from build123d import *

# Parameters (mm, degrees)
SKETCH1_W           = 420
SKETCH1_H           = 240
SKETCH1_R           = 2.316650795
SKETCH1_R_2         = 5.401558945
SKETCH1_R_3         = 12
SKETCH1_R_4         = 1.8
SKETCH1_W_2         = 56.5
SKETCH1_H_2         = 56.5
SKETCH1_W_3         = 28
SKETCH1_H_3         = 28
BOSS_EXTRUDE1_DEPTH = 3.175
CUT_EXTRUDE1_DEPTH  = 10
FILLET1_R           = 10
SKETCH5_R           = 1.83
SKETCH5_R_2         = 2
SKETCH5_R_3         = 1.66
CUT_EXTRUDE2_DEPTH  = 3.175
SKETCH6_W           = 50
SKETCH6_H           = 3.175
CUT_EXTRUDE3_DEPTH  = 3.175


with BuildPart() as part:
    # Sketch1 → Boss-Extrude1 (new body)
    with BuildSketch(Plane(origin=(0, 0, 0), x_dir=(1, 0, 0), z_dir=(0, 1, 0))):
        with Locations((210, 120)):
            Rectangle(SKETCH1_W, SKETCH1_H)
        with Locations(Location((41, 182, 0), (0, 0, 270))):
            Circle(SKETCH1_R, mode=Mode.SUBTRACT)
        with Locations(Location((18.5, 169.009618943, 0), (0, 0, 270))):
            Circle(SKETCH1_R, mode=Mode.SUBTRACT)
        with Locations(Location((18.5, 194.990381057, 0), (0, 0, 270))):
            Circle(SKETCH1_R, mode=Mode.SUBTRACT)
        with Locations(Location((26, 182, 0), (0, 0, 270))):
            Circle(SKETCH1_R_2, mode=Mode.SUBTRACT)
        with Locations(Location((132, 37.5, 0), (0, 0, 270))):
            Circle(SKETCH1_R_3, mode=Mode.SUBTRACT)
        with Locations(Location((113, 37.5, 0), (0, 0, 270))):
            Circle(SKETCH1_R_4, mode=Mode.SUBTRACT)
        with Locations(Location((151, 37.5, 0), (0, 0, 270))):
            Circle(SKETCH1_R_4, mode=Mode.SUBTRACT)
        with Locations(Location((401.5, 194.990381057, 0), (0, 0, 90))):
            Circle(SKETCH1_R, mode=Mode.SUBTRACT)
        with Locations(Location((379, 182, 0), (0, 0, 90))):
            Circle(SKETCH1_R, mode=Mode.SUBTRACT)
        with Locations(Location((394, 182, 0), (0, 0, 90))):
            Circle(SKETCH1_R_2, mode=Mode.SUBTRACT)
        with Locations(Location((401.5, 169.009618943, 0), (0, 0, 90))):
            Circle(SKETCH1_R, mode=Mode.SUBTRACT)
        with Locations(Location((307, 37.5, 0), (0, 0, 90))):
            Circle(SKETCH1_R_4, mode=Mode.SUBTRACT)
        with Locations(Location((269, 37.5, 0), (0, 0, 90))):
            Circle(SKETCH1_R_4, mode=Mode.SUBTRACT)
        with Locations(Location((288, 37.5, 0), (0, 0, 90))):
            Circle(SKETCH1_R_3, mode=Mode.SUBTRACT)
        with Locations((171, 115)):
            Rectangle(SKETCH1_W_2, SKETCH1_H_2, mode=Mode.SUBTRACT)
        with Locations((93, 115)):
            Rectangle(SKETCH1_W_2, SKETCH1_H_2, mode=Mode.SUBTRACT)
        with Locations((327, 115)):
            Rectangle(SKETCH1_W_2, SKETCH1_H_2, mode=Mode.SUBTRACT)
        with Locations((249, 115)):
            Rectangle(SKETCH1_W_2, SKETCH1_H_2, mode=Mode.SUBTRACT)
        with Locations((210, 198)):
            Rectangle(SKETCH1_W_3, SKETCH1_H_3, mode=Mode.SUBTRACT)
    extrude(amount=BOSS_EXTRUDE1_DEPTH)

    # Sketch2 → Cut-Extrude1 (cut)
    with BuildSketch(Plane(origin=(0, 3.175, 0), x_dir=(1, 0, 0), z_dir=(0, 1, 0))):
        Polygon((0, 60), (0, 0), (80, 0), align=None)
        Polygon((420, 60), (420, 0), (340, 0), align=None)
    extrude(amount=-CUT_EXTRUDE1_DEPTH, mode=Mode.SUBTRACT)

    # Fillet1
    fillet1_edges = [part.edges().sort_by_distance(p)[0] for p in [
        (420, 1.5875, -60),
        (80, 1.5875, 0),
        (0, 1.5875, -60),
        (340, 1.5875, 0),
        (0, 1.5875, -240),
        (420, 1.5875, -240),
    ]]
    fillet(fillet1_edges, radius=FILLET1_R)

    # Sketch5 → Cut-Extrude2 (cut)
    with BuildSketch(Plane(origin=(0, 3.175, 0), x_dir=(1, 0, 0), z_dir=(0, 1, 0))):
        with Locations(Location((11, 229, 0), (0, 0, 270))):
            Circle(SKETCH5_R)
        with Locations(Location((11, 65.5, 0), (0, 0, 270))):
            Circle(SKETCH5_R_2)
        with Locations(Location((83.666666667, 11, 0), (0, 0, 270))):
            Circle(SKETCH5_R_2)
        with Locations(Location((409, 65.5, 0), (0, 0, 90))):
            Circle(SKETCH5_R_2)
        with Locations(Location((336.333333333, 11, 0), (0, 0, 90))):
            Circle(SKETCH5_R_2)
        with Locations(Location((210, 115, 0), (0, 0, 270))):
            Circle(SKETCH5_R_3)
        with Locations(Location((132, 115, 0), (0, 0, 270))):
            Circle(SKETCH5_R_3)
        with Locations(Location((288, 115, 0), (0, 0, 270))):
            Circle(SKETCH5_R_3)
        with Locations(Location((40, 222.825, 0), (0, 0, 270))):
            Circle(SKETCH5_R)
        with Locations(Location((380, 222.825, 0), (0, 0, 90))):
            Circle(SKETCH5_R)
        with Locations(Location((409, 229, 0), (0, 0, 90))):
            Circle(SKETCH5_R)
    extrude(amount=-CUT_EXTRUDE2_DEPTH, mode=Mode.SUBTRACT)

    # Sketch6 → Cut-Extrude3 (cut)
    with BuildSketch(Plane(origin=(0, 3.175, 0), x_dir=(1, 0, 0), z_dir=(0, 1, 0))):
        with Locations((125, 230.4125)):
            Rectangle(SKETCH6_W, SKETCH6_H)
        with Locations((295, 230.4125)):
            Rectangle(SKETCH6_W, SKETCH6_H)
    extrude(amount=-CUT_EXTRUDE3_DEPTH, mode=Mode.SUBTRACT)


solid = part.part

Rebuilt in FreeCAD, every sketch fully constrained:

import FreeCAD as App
import Part
import Sketcher
from FreeCAD import Vector
Q = App.Units.Quantity


def edges_at(feature, points):
    """Names of the edges that pass closest to the given points."""
    edges = feature.Shape.Edges
    near = lambda p: min(range(len(edges)), key=lambda i: edges[i].distToShape(Part.Vertex(*p))[0])
    return sorted({f"Edge{near(p) + 1}" for p in points})


def add_polygon(sketch, points):
    """Adds a closed chain of lines whose ends are joined by coincident constraints."""
    first, n = sketch.GeometryCount, len(points)
    for a, b in zip(points, points[1:] + points[:1]):
        sketch.addGeometry(Part.LineSegment(App.Vector(*a, 0), App.Vector(*b, 0)), False)
    for i in range(n):
        sketch.addConstraint(Sketcher.Constraint("Coincident", first + i, 2, first + (i + 1) % n, 1))

doc = App.newDocument("Part")
params = doc.addObject("Spreadsheet::Sheet", "Params")
for row, (alias, value) in enumerate([
    ("sketch1_diameter", "24 mm"),
    ("sketch1_diameter2", "3.6 mm"),
    ("sketch1_width", "420 mm"),
    ("sketch1_width2", "28 mm"),
    ("sketch1_height", "240 mm"),
    ("pad1_length", "3.175 mm"),
    ("sketch2_width", "80 mm"),
    ("sketch2_height", "60 mm"),
    ("pocket1_length", "10 mm"),
    ("fillet_radius", "10 mm"),
    ("sketch3_diameter", "4 mm"),
    ("sketch3_diameter2", "3.66 mm"),
    ("sketch3_diameter3", "3.32 mm"),
    ("pocket2_length", "3.175 mm"),
    ("sketch4_width", "50 mm"),
    ("pocket3_length", "3.175 mm"),
], start=1):
    params.set(f"A{row}", alias)
    params.set(f"B{row}", "=" + value)
    params.setAlias(f"B{row}", alias)

body = doc.addObject("PartDesign::Body", "Body")

# Sketch on XZ plane
sketch1 = body.newObject("Sketcher::SketchObject", "Sketch")
sketch1.AttachmentSupport = (doc.getObject("XZ_Plane"), [""])
sketch1.MapMode = "FlatFace"
add_polygon(sketch1, [(0, -240), (0, 0), (420, 0), (420, -240)])  # lines 0-3
sketch1.addGeometry(Part.Circle(Vector(113, -37.5, 0), Vector(0, 0, 1), 1.8), False)  # 4
sketch1.addGeometry(Part.Circle(Vector(132, -37.5, 0), Vector(0, 0, 1), 12), False)  # 5
sketch1.addGeometry(Part.Circle(Vector(151, -37.5, 0), Vector(0, 0, 1), 1.8), False)  # 6
add_polygon(sketch1, [(121.25, -86.75), (64.75, -86.75), (64.75, -143.25), (121.25, -143.25)])  # lines 7-10
add_polygon(sketch1, [(199.25, -86.75), (142.75, -86.75), (142.75, -143.25), (199.25, -143.25)])  # lines 11-14
sketch1.addGeometry(Part.Circle(Vector(269, -37.5, 0), Vector(0, 0, 1), 1.8), False)  # 15
sketch1.addGeometry(Part.Circle(Vector(288, -37.5, 0), Vector(0, 0, 1), 12), False)  # 16
sketch1.addGeometry(Part.Circle(Vector(307, -37.5, 0), Vector(0, 0, 1), 1.8), False)  # 17
add_polygon(sketch1, [(277.25, -86.75), (220.75, -86.75), (220.75, -143.25), (277.25, -143.25)])  # lines 18-21
add_polygon(sketch1, [(355.25, -86.75), (298.75, -86.75), (298.75, -143.25), (355.25, -143.25)])  # lines 22-25
sketch1.addGeometry(Part.Circle(Vector(18.5, -169.009619, 0), Vector(0, 0, 1), 2.316651), False)  # 26
sketch1.addGeometry(Part.Circle(Vector(26, -182, 0), Vector(0, 0, 1), 5.401559), False)  # 27
sketch1.addGeometry(Part.Circle(Vector(41, -182, 0), Vector(0, 0, 1), 2.316651), False)  # 28
sketch1.addGeometry(Part.Circle(Vector(18.5, -194.990381, 0), Vector(0, 0, 1), 2.316651), False)  # 29
add_polygon(sketch1, [(224, -184), (196, -184), (196, -212), (224, -212)])  # lines 30-33
sketch1.addGeometry(Part.Circle(Vector(401.5, -169.009619, 0), Vector(0, 0, 1), 2.316651), False)  # 34
sketch1.addGeometry(Part.Circle(Vector(379, -182, 0), Vector(0, 0, 1), 2.316651), False)  # 35
sketch1.addGeometry(Part.Circle(Vector(394, -182, 0), Vector(0, 0, 1), 5.401559), False)  # 36
sketch1.addGeometry(Part.Circle(Vector(401.5, -194.990381, 0), Vector(0, 0, 1), 2.316651), False)  # 37
sketch1.addConstraint([
    Sketcher.Constraint("Vertical", 0),
    Sketcher.Constraint("Horizontal", 1),
    Sketcher.Constraint("Vertical", 2),
    Sketcher.Constraint("Horizontal", 3),
    Sketcher.Constraint("Horizontal", 7),
    Sketcher.Constraint("Vertical", 8),
    Sketcher.Constraint("Horizontal", 9),
    Sketcher.Constraint("Vertical", 10),
    Sketcher.Constraint("Horizontal", 11),
    Sketcher.Constraint("Vertical", 12),
    Sketcher.Constraint("Horizontal", 13),
    Sketcher.Constraint("Vertical", 14),
    Sketcher.Constraint("Horizontal", 18),
    Sketcher.Constraint("Vertical", 19),
    Sketcher.Constraint("Horizontal", 20),
    Sketcher.Constraint("Vertical", 21),
    Sketcher.Constraint("Horizontal", 22),
    Sketcher.Constraint("Vertical", 23),
    Sketcher.Constraint("Horizontal", 24),
    Sketcher.Constraint("Vertical", 25),
    Sketcher.Constraint("Horizontal", 30),
    Sketcher.Constraint("Vertical", 31),
    Sketcher.Constraint("Horizontal", 32),
    Sketcher.Constraint("Vertical", 33),
    Sketcher.Constraint("Coincident", 0, 2, -1, 1),
    Sketcher.Constraint("Equal", 4, 6),
    Sketcher.Constraint("Equal", 6, 15),
    Sketcher.Constraint("Equal", 5, 16),
    Sketcher.Constraint("Equal", 15, 17),
    Sketcher.Constraint("Equal", 26, 28),
    Sketcher.Constraint("Equal", 28, 29),
    Sketcher.Constraint("Equal", 29, 34),
    Sketcher.Constraint("Equal", 34, 35),
    Sketcher.Constraint("Equal", 27, 36),
    Sketcher.Constraint("Equal", 35, 37),
    Sketcher.Constraint("Horizontal", 4, 3, 5, 3),
    Sketcher.Constraint("Horizontal", 5, 3, 6, 3),
    Sketcher.Constraint("Horizontal", 6, 3, 15, 3),
    Sketcher.Constraint("Horizontal", 15, 3, 16, 3),
    Sketcher.Constraint("Horizontal", 16, 3, 17, 3),
    Sketcher.Constraint("Horizontal", 27, 3, 28, 3),
    Sketcher.Constraint("Horizontal", 26, 3, 34, 3),
    Sketcher.Constraint("Horizontal", 28, 3, 35, 3),
    Sketcher.Constraint("Horizontal", 35, 3, 36, 3),
    Sketcher.Constraint("Horizontal", 29, 3, 37, 3),
    Sketcher.Constraint("Horizontal", 10, 2, 11, 2),
    Sketcher.Constraint("Horizontal", 9, 2, 12, 2),
    Sketcher.Constraint("Horizontal", 14, 2, 18, 2),
    Sketcher.Constraint("Horizontal", 13, 2, 19, 2),
    Sketcher.Constraint("Horizontal", 21, 2, 22, 2),
    Sketcher.Constraint("Horizontal", 20, 2, 23, 2),
    Sketcher.Constraint("Vertical", 26, 3, 29, 3),
    Sketcher.Constraint("Vertical", 34, 3, 37, 3),
    Sketcher.Constraint("Equal", 9, 11),
    Sketcher.Constraint("Equal", 13, 18),
    Sketcher.Constraint("Equal", 20, 22),
    Sketcher.Constraint("Equal", 24, 8),
    Sketcher.Constraint("Equal", 32, 31),
    Sketcher.Constraint("Diameter", 5, Q("24 mm")),
    Sketcher.Constraint("Diameter", 4, Q("3.6 mm")),
    Sketcher.Constraint("DistanceX", 1, 1, 1, 2, Q("420 mm")),
    Sketcher.Constraint("DistanceX", 30, 2, 30, 1, Q("28 mm")),
    Sketcher.Constraint("DistanceY", 0, 1, 0, 2, Q("240 mm")),
    Sketcher.Constraint("DistanceX", 7, 2, 7, 1, Q("56.5 mm")),
    Sketcher.Constraint("DistanceX", -1, 1, 4, 3, Q("113 mm")),
    Sketcher.Constraint("DistanceX", -1, 1, 5, 3, Q("132 mm")),
    Sketcher.Constraint("DistanceX", -1, 1, 6, 3, Q("151 mm")),
    Sketcher.Constraint("DistanceX", -1, 1, 15, 3, Q("269 mm")),
    Sketcher.Constraint("DistanceX", -1, 1, 16, 3, Q("288 mm")),
    Sketcher.Constraint("DistanceX", -1, 1, 17, 3, Q("307 mm")),
    Sketcher.Constraint("DistanceX", -1, 1, 27, 3, Q("26 mm")),
    Sketcher.Constraint("DistanceY", 27, 3, -1, 1, Q("182 mm")),
    Sketcher.Constraint("DistanceX", -1, 1, 28, 3, Q("41 mm")),
    Sketcher.Constraint("DistanceX", -1, 1, 35, 3, Q("379 mm")),
    Sketcher.Constraint("DistanceX", -1, 1, 36, 3, Q("394 mm")),
    Sketcher.Constraint("DistanceX", -1, 1, 30, 2, Q("196 mm")),
    Sketcher.Constraint("DistanceY", 30, 2, -1, 1, Q("184 mm")),
    Sketcher.Constraint("DistanceX", 8, 2, 12, 2, Q("78 mm")),
    Sketcher.Constraint("DistanceX", 11, 2, 18, 2, Q("78 mm")),
    Sketcher.Constraint("DistanceX", 19, 2, 23, 2, Q("78 mm")),
    Sketcher.Constraint("Diameter", 26, Q("4.633302 mm")),
    Sketcher.Constraint("DistanceY", 4, 3, -1, 1, Q("37.5 mm")),
    Sketcher.Constraint("DistanceX", -1, 1, 26, 3, Q("18.5 mm")),
    Sketcher.Constraint("DistanceX", -1, 1, 34, 3, Q("401.5 mm")),
    Sketcher.Constraint("DistanceX", -1, 1, 7, 2, Q("64.75 mm")),
    Sketcher.Constraint("DistanceY", 7, 2, -1, 1, Q("86.75 mm")),
    Sketcher.Constraint("Diameter", 27, Q("10.803118 mm")),
    Sketcher.Constraint("DistanceY", 26, 3, -1, 1, Q("169.009619 mm")),
    Sketcher.Constraint("DistanceY", 29, 3, -1, 1, Q("194.990381 mm")),
])
sketch1.setExpression("Constraints[82]", "Params.sketch1_diameter")
sketch1.setExpression("Constraints[83]", "Params.sketch1_diameter2")
sketch1.setExpression("Constraints[84]", "Params.sketch1_width")
sketch1.setExpression("Constraints[85]", "Params.sketch1_width2")
sketch1.setExpression("Constraints[86]", "Params.sketch1_height")
pad1 = body.newObject("PartDesign::Pad", "Pad")
pad1.Profile = sketch1
pad1.setExpression("Length", "Params.pad1_length")
pad1.Reversed = True

# Sketch on XZ plane
sketch2 = body.newObject("Sketcher::SketchObject", "Sketch001")
sketch2.AttachmentSupport = (doc.getObject("XZ_Plane"), [""])
sketch2.MapMode = "FlatFace"
sketch2.AttachmentOffset = App.Placement(Vector(0, 0, -3.175), App.Rotation())
add_polygon(sketch2, [(0, -60), (0, 0), (80, 0)])  # lines 0-2
add_polygon(sketch2, [(420, 0), (420, -60), (340, 0)])  # lines 3-5
sketch2.addConstraint([
    Sketcher.Constraint("Vertical", 0),
    Sketcher.Constraint("Horizontal", 1),
    Sketcher.Constraint("Vertical", 3),
    Sketcher.Constraint("Horizontal", 5),
    Sketcher.Constraint("Coincident", 0, 2, -1, 1),
    Sketcher.Constraint("PointOnObject", 4, 2, -1),
    Sketcher.Constraint("Horizontal", 2, 2, 3, 2),
    Sketcher.Constraint("Equal", 1, 5),
    Sketcher.Constraint("DistanceX", 1, 1, 1, 2, Q("80 mm")),
    Sketcher.Constraint("DistanceY", 0, 1, 0, 2, Q("60 mm")),
    Sketcher.Constraint("DistanceX", -1, 1, 3, 2, Q("420 mm")),
])
sketch2.setExpression("Constraints[14]", "Params.sketch2_width")
sketch2.setExpression("Constraints[15]", "Params.sketch2_height")
pocket1 = body.newObject("PartDesign::Pocket", "Pocket")
pocket1.Profile = sketch2
pocket1.setExpression("Length", "Params.pocket1_length")
pocket1.Reversed = True
doc.recompute()

fillet = body.newObject("PartDesign::Fillet", "Fillet")
fillet.Base = (pocket1, edges_at(pocket1, [
    (420, 1.587, -60),
    (80, 1.587, 0),
    (0, 1.587, -60),
    (340, 1.587, 0),
    (0, 1.587, -240),
    (420, 1.587, -240),
]))
fillet.setExpression("Radius", "Params.fillet_radius")

# Sketch on XZ plane
sketch3 = body.newObject("Sketcher::SketchObject", "Sketch002")
sketch3.AttachmentSupport = (doc.getObject("XZ_Plane"), [""])
sketch3.MapMode = "FlatFace"
sketch3.AttachmentOffset = App.Placement(Vector(0, 0, -3.175), App.Rotation())
sketch3.addGeometry([
    Part.Circle(Vector(11, -229, 0), Vector(0, 0, 1), 1.83),  # 0
    Part.Circle(Vector(11, -65.5, 0), Vector(0, 0, 1), 2),  # 1
    Part.Circle(Vector(83.666667, -11, 0), Vector(0, 0, 1), 2),  # 2
    Part.Circle(Vector(409, -65.5, 0), Vector(0, 0, 1), 2),  # 3
    Part.Circle(Vector(336.333333, -11, 0), Vector(0, 0, 1), 2),  # 4
    Part.Circle(Vector(210, -115, 0), Vector(0, 0, 1), 1.66),  # 5
    Part.Circle(Vector(132, -115, 0), Vector(0, 0, 1), 1.66),  # 6
    Part.Circle(Vector(288, -115, 0), Vector(0, 0, 1), 1.66),  # 7
    Part.Circle(Vector(40, -222.825, 0), Vector(0, 0, 1), 1.83),  # 8
    Part.Circle(Vector(380, -222.825, 0), Vector(0, 0, 1), 1.83),  # 9
    Part.Circle(Vector(409, -229, 0), Vector(0, 0, 1), 1.83),  # 10
], False)
sketch3.addConstraint([
    Sketcher.Constraint("Equal", 1, 2),
    Sketcher.Constraint("Equal", 2, 3),
    Sketcher.Constraint("Equal", 3, 4),
    Sketcher.Constraint("Equal", 5, 6),
    Sketcher.Constraint("Equal", 6, 7),
    Sketcher.Constraint("Equal", 0, 8),
    Sketcher.Constraint("Equal", 8, 9),
    Sketcher.Constraint("Equal", 9, 10),
    Sketcher.Constraint("Horizontal", 1, 3, 3, 3),
    Sketcher.Constraint("Horizontal", 2, 3, 4, 3),
    Sketcher.Constraint("Horizontal", 5, 3, 6, 3),
    Sketcher.Constraint("Horizontal", 6, 3, 7, 3),
    Sketcher.Constraint("Horizontal", 8, 3, 9, 3),
    Sketcher.Constraint("Horizontal", 0, 3, 10, 3),
    Sketcher.Constraint("Vertical", 0, 3, 1, 3),
    Sketcher.Constraint("Vertical", 3, 3, 10, 3),
    Sketcher.Constraint("Diameter", 1, Q("4 mm")),
    Sketcher.Constraint("Diameter", 0, Q("3.66 mm")),
    Sketcher.Constraint("Diameter", 5, Q("3.32 mm")),
    Sketcher.Constraint("DistanceX", -1, 1, 0, 3, Q("11 mm")),
    Sketcher.Constraint("DistanceY", 0, 3, -1, 1, Q("229 mm")),
    Sketcher.Constraint("DistanceY", 2, 3, -1, 1, Q("11 mm")),
    Sketcher.Constraint("DistanceX", -1, 1, 3, 3, Q("409 mm")),
    Sketcher.Constraint("DistanceX", -1, 1, 5, 3, Q("210 mm")),
    Sketcher.Constraint("DistanceY", 5, 3, -1, 1, Q("115 mm")),
    Sketcher.Constraint("DistanceX", -1, 1, 6, 3, Q("132 mm")),
    Sketcher.Constraint("DistanceX", -1, 1, 7, 3, Q("288 mm")),
    Sketcher.Constraint("DistanceX", -1, 1, 8, 3, Q("40 mm")),
    Sketcher.Constraint("DistanceX", -1, 1, 9, 3, Q("380 mm")),
    Sketcher.Constraint("DistanceY", 1, 3, -1, 1, Q("65.5 mm")),
    Sketcher.Constraint("DistanceY", 8, 3, -1, 1, Q("222.825 mm")),
    Sketcher.Constraint("DistanceX", -1, 1, 2, 3, Q("83.666667 mm")),
    Sketcher.Constraint("DistanceX", -1, 1, 4, 3, Q("336.333333 mm")),
])
sketch3.setExpression("Constraints[16]", "Params.sketch3_diameter")
sketch3.setExpression("Constraints[17]", "Params.sketch3_diameter2")
sketch3.setExpression("Constraints[18]", "Params.sketch3_diameter3")
pocket2 = body.newObject("PartDesign::Pocket", "Pocket001")
pocket2.Profile = sketch3
pocket2.setExpression("Length", "Params.pocket2_length")
pocket2.Reversed = True

# Sketch on XZ plane
sketch4 = body.newObject("Sketcher::SketchObject", "Sketch003")
sketch4.AttachmentSupport = (doc.getObject("XZ_Plane"), [""])
sketch4.MapMode = "FlatFace"
sketch4.AttachmentOffset = App.Placement(Vector(0, 0, -3.175), App.Rotation())
add_polygon(sketch4, [(100, -232), (100, -228.825), (150, -228.825), (150, -232)])  # lines 0-3
add_polygon(sketch4, [(270, -232), (270, -228.825), (320, -228.825), (320, -232)])  # lines 4-7
sketch4.addConstraint([
    Sketcher.Constraint("Vertical", 0),
    Sketcher.Constraint("Horizontal", 1),
    Sketcher.Constraint("Vertical", 2),
    Sketcher.Constraint("Horizontal", 3),
    Sketcher.Constraint("Vertical", 4),
    Sketcher.Constraint("Horizontal", 5),
    Sketcher.Constraint("Vertical", 6),
    Sketcher.Constraint("Horizontal", 7),
    Sketcher.Constraint("Horizontal", 1, 2, 4, 2),
    Sketcher.Constraint("Horizontal", 3, 2, 6, 2),
    Sketcher.Constraint("Equal", 3, 5),
    Sketcher.Constraint("DistanceX", 1, 1, 1, 2, Q("50 mm")),
    Sketcher.Constraint("DistanceX", -1, 1, 0, 2, Q("100 mm")),
    Sketcher.Constraint("DistanceY", 2, 2, -1, 1, Q("232 mm")),
    Sketcher.Constraint("DistanceX", -1, 1, 4, 2, Q("270 mm")),
    Sketcher.Constraint("DistanceY", 0, 1, 0, 2, Q("3.175 mm")),
])
sketch4.setExpression("Constraints[19]", "Params.sketch4_width")
pocket3 = body.newObject("PartDesign::Pocket", "Pocket002")
pocket3.Profile = sketch4
pocket3.setExpression("Length", "Params.pocket3_length")
pocket3.Reversed = True

doc.recompute()
